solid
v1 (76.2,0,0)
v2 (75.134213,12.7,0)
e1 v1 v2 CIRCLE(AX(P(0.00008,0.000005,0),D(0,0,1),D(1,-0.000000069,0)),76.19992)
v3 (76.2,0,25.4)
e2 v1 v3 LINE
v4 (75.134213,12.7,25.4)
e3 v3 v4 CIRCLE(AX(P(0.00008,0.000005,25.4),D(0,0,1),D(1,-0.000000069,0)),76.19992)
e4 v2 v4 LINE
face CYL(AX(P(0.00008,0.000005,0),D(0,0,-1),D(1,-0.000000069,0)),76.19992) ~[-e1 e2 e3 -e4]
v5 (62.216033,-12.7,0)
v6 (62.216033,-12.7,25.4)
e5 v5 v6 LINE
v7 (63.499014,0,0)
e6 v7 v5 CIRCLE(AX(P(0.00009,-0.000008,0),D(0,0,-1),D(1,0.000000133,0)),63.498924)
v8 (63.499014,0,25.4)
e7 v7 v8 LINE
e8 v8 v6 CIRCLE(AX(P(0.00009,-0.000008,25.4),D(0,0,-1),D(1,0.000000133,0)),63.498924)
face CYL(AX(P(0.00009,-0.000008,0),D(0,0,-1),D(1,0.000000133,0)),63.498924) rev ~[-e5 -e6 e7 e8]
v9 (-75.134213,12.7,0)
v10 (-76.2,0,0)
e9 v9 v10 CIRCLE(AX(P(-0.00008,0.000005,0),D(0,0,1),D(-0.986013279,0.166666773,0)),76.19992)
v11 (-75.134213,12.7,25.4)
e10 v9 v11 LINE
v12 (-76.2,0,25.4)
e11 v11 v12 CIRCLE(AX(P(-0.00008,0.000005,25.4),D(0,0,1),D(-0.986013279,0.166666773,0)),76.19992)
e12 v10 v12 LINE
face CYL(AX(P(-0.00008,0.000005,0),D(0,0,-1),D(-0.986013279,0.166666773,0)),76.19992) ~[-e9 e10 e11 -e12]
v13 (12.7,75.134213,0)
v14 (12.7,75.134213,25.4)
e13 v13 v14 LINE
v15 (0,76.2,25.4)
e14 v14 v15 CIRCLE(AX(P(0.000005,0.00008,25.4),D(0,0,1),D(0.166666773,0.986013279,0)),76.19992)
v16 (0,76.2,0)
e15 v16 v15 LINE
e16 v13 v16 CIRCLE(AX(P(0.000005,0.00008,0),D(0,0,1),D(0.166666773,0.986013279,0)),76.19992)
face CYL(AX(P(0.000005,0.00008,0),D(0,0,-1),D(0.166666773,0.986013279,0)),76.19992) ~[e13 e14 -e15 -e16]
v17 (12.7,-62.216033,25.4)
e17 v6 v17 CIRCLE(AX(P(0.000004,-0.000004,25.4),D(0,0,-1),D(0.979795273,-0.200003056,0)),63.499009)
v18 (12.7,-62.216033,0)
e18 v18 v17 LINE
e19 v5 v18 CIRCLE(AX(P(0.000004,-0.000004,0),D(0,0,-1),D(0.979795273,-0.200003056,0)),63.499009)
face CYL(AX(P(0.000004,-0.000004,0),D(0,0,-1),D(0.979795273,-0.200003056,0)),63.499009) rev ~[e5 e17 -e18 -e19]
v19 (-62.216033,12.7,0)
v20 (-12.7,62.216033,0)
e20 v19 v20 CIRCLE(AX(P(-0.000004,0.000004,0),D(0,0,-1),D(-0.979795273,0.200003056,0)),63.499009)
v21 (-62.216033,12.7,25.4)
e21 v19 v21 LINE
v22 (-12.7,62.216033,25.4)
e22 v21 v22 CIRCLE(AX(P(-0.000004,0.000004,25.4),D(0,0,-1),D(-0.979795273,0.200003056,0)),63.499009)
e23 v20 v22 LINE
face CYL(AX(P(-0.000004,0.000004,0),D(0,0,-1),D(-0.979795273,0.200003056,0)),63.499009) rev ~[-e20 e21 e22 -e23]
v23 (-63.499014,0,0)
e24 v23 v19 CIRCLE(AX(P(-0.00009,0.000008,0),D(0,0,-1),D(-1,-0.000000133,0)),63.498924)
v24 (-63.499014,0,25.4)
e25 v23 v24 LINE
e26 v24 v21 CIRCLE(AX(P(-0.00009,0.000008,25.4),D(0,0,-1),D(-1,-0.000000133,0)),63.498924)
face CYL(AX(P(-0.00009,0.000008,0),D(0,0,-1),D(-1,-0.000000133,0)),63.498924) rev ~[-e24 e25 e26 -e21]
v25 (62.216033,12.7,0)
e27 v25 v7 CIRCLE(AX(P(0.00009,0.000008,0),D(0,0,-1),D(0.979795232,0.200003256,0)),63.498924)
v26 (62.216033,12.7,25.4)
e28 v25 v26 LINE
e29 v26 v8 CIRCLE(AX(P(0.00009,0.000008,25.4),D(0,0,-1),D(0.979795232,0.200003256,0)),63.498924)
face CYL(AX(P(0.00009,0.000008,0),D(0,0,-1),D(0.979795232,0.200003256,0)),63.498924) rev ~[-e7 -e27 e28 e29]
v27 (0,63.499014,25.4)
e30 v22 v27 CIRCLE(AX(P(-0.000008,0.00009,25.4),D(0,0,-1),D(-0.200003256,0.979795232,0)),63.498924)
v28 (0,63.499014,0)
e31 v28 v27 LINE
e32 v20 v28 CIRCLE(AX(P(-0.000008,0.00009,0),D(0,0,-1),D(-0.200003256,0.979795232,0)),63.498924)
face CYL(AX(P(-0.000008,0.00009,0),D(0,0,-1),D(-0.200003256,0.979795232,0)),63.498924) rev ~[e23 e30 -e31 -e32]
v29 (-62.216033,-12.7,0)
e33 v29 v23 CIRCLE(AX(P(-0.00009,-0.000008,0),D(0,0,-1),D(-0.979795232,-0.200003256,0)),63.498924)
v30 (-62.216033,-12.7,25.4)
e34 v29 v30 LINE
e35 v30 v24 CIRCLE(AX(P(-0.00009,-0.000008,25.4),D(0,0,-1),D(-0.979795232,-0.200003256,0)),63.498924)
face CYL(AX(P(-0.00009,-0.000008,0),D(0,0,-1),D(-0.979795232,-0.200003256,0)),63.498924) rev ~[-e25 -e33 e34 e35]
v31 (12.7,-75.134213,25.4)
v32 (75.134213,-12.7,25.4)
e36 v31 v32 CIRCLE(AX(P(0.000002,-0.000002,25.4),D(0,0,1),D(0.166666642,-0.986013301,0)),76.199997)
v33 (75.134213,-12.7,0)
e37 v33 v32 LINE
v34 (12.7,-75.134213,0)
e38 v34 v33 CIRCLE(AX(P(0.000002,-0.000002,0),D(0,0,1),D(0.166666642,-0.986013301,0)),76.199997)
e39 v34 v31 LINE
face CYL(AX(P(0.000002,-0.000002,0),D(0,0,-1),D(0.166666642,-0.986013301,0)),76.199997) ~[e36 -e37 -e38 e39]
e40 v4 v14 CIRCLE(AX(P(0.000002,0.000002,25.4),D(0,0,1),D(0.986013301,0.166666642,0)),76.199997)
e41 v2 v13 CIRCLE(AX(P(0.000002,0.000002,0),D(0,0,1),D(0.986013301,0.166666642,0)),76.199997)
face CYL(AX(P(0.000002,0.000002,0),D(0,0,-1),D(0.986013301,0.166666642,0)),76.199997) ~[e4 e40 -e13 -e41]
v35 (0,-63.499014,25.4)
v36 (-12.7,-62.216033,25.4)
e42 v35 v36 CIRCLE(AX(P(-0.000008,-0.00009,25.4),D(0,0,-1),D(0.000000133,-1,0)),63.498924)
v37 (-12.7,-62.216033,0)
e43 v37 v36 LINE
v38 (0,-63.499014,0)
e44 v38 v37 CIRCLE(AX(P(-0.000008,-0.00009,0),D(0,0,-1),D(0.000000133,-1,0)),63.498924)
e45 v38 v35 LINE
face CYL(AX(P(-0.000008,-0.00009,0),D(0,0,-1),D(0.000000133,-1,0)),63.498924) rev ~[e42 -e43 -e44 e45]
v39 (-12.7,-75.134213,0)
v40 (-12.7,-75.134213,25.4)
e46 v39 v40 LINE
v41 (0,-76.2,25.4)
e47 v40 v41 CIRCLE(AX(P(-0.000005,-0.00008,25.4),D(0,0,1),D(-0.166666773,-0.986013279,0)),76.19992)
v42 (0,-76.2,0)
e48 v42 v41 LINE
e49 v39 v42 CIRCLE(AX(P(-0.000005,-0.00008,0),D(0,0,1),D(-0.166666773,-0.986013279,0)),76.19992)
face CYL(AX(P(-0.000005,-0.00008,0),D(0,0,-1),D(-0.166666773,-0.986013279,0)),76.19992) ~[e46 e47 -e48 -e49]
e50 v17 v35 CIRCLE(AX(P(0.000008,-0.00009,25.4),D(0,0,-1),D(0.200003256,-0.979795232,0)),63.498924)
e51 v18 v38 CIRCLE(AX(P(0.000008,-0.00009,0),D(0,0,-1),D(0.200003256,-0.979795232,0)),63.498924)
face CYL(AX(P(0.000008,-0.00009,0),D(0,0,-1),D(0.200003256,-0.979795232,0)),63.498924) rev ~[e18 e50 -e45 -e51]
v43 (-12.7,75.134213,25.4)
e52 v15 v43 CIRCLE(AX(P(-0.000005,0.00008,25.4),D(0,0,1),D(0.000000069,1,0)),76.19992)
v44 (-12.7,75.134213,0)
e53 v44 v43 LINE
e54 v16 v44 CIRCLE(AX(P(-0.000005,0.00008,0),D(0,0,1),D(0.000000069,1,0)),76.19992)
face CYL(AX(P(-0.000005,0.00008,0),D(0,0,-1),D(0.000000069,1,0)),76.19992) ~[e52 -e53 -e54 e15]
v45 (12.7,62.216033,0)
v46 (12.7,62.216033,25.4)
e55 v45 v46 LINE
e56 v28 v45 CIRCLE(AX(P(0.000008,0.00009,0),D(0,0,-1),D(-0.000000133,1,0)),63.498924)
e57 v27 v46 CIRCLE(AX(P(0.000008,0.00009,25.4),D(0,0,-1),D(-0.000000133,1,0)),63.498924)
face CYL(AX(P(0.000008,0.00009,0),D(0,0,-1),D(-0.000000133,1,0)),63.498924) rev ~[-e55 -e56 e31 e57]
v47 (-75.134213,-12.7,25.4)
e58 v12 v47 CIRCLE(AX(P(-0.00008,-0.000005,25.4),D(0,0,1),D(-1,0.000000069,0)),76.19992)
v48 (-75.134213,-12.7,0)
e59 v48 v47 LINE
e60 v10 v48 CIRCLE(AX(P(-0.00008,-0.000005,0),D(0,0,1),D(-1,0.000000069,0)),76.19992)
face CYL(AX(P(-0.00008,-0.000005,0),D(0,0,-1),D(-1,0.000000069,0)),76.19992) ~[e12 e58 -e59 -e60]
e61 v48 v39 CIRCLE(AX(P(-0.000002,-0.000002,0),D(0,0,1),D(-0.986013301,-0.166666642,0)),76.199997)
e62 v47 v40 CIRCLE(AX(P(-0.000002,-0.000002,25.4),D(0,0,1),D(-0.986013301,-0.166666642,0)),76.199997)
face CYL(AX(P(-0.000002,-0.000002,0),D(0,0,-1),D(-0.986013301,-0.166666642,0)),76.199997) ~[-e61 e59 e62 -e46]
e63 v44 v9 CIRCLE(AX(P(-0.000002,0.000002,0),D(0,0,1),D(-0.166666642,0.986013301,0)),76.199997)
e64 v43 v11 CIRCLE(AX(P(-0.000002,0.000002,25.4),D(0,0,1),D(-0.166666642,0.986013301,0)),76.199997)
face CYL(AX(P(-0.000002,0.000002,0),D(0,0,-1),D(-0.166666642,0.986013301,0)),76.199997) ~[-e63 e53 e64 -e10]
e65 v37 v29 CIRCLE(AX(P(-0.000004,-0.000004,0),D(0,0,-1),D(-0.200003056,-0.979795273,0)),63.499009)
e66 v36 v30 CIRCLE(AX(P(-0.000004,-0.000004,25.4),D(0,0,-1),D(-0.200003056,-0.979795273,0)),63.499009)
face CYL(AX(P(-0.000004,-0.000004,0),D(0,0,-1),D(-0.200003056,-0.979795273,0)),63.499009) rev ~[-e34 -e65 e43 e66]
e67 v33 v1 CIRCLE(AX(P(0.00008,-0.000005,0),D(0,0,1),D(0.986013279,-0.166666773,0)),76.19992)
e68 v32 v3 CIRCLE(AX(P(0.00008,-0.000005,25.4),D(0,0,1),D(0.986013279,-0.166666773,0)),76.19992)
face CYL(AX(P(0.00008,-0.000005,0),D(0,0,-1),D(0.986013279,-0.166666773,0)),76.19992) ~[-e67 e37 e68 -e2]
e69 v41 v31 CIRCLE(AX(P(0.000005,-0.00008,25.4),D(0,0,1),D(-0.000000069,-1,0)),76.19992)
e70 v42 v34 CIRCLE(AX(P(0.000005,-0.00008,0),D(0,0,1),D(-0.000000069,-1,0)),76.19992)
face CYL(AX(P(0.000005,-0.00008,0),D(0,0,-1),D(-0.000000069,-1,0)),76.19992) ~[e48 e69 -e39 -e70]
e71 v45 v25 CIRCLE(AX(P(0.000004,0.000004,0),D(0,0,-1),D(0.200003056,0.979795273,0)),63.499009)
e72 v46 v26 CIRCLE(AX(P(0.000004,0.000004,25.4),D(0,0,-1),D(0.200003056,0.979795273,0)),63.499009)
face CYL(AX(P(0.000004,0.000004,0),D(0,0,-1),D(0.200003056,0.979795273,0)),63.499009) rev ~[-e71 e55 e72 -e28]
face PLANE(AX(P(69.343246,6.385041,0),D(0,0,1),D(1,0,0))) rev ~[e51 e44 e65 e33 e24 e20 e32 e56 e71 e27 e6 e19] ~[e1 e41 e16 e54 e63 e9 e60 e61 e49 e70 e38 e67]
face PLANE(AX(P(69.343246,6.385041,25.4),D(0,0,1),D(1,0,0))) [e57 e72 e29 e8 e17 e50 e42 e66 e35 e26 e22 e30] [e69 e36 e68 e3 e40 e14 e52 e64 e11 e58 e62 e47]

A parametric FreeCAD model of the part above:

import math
import FreeCAD as App
import Part
import Sketcher
from FreeCAD import Vector
Q = App.Units.Quantity

doc = App.newDocument("Part")
body = doc.addObject("PartDesign::Body", "Body")

sketch1 = body.newObject("Sketcher::SketchObject", "Sketch")
sketch1.AttachmentSupport = (doc.getObject("XY_Plane"), [""])
sketch1.MapMode = "FlatFace"
sketch1.addGeometry([
    Part.ArcOfCircle(Part.Circle(Vector(0.00008, 0.000005, 0), Vector(0, 0, 1), 76.19992), math.radians(-0.000004), math.radians(9.594074)),
    Part.ArcOfCircle(Part.Circle(Vector(0.000002, 0.000002, 0), Vector(0, 0, 1), 76.199997), math.radians(9.594067), math.radians(80.405933)),
    Part.ArcOfCircle(Part.Circle(Vector(0.000005, 0.00008, 0), Vector(0, 0, 1), 76.19992), math.radians(80.405926), math.radians(90.000004)),
    Part.ArcOfCircle(Part.Circle(Vector(-0.000005, 0.00008, 0), Vector(0, 0, 1), 76.19992), math.radians(89.999996), math.radians(99.594074)),
    Part.ArcOfCircle(Part.Circle(Vector(-0.000002, 0.000002, 0), Vector(0, 0, 1), 76.199997), math.radians(99.594067), math.radians(170.405933)),
    Part.ArcOfCircle(Part.Circle(Vector(-0.00008, 0.000005, 0), Vector(0, 0, 1), 76.19992), math.radians(170.405926), math.radians(180.000004)),
    Part.ArcOfCircle(Part.Circle(Vector(-0.00008, -0.000005, 0), Vector(0, 0, 1), 76.19992), math.radians(179.999996), math.radians(189.594074)),
    Part.ArcOfCircle(Part.Circle(Vector(-0.000002, -0.000002, 0), Vector(0, 0, 1), 76.199997), math.radians(-170.405933), math.radians(-99.594067)),
    Part.ArcOfCircle(Part.Circle(Vector(-0.000005, -0.00008, 0), Vector(0, 0, 1), 76.19992), math.radians(-99.594074), math.radians(-89.999996)),
    Part.ArcOfCircle(Part.Circle(Vector(0.000005, -0.00008, 0), Vector(0, 0, 1), 76.19992), math.radians(-90.000004), math.radians(-80.405926)),
    Part.ArcOfCircle(Part.Circle(Vector(0.000002, -0.000002, 0), Vector(0, 0, 1), 76.199997), math.radians(-80.405933), math.radians(-9.594067)),
    Part.ArcOfCircle(Part.Circle(Vector(0.00008, -0.000005, 0), Vector(0, 0, 1), 76.19992), math.radians(-9.594074), math.radians(0.000004)),
    Part.ArcOfCircle(Part.Circle(Vector(-0.00009, 0.000008, 0), Vector(0, 0, 1), 63.498924), math.radians(168.462851), math.radians(180.000008)),
    Part.ArcOfCircle(Part.Circle(Vector(-0.000004, 0.000004, 0), Vector(0, 0, 1), 63.499009), math.radians(101.537138), math.radians(168.462862)),
    Part.ArcOfCircle(Part.Circle(Vector(-0.000008, 0.00009, 0), Vector(0, 0, 1), 63.498924), math.radians(89.999992), math.radians(101.537149)),
    Part.ArcOfCircle(Part.Circle(Vector(0.000008, 0.00009, 0), Vector(0, 0, 1), 63.498924), math.radians(78.462851), math.radians(90.000008)),
    Part.ArcOfCircle(Part.Circle(Vector(0.000004, 0.000004, 0), Vector(0, 0, 1), 63.499009), math.radians(11.537138), math.radians(78.462862)),
    Part.ArcOfCircle(Part.Circle(Vector(0.00009, 0.000008, 0), Vector(0, 0, 1), 63.498924), math.radians(-0.000008), math.radians(11.537149)),
    Part.ArcOfCircle(Part.Circle(Vector(0.00009, -0.000008, 0), Vector(0, 0, 1), 63.498924), math.radians(-11.537149), math.radians(0.000008)),
    Part.ArcOfCircle(Part.Circle(Vector(0.000004, -0.000004, 0), Vector(0, 0, 1), 63.499009), math.radians(-78.462862), math.radians(-11.537138)),
    Part.ArcOfCircle(Part.Circle(Vector(0.000008, -0.00009, 0), Vector(0, 0, 1), 63.498924), math.radians(-90.000008), math.radians(-78.462851)),
    Part.ArcOfCircle(Part.Circle(Vector(-0.000008, -0.00009, 0), Vector(0, 0, 1), 63.498924), math.radians(-101.537149), math.radians(-89.999992)),
    Part.ArcOfCircle(Part.Circle(Vector(-0.000004, -0.000004, 0), Vector(0, 0, 1), 63.499009), math.radians(-168.462862), math.radians(-101.537138)),
    Part.ArcOfCircle(Part.Circle(Vector(-0.00009, -0.000008, 0), Vector(0, 0, 1), 63.498924), math.radians(179.999992), math.radians(191.537149)),
], False)
sketch1.addConstraint([
    Sketcher.Constraint("Coincident", 0, 2, 1, 1),
    Sketcher.Constraint("Coincident", 1, 2, 2, 1),
    Sketcher.Constraint("Coincident", 2, 2, 3, 1),
    Sketcher.Constraint("Coincident", 3, 2, 4, 1),
    Sketcher.Constraint("Coincident", 4, 2, 5, 1),
    Sketcher.Constraint("Coincident", 5, 2, 6, 1),
    Sketcher.Constraint("Coincident", 6, 2, 7, 1),
    Sketcher.Constraint("Coincident", 7, 2, 8, 1),
    Sketcher.Constraint("Coincident", 8, 2, 9, 1),
    Sketcher.Constraint("Coincident", 9, 2, 10, 1),
    Sketcher.Constraint("Coincident", 10, 2, 11, 1),
    Sketcher.Constraint("Coincident", 11, 2, 0, 1),
    Sketcher.Constraint("Coincident", 12, 1, 13, 2),
    Sketcher.Constraint("Coincident", 13, 1, 14, 2),
    Sketcher.Constraint("Coincident", 14, 1, 15, 2),
    Sketcher.Constraint("Coincident", 15, 1, 16, 2),
    Sketcher.Constraint("Coincident", 16, 1, 17, 2),
    Sketcher.Constraint("Coincident", 17, 1, 18, 2),
    Sketcher.Constraint("Coincident", 18, 1, 19, 2),
    Sketcher.Constraint("Coincident", 19, 1, 20, 2),
    Sketcher.Constraint("Coincident", 20, 1, 21, 2),
    Sketcher.Constraint("Coincident", 21, 1, 22, 2),
    Sketcher.Constraint("Coincident", 22, 1, 23, 2),
    Sketcher.Constraint("Coincident", 23, 1, 12, 2),
    Sketcher.Constraint("Coincident", 1, 3, -1, 1),
    Sketcher.Constraint("Coincident", 4, 3, -1, 1),
    Sketcher.Constraint("Coincident", 7, 3, -1, 1),
    Sketcher.Constraint("Coincident", 10, 3, -1, 1),
    Sketcher.Constraint("Coincident", 13, 3, -1, 1),
    Sketcher.Constraint("Coincident", 16, 3, -1, 1),
    Sketcher.Constraint("Coincident", 19, 3, -1, 1),
    Sketcher.Constraint("Coincident", 22, 3, -1, 1),
    Sketcher.Constraint("PointOnObject", 2, 2, -2),
    Sketcher.Constraint("PointOnObject", 5, 2, -1),
    Sketcher.Constraint("PointOnObject", 8, 2, -2),
    Sketcher.Constraint("PointOnObject", 11, 2, -1),
    Sketcher.Constraint("PointOnObject", 14, 1, -2),
    Sketcher.Constraint("PointOnObject", 17, 1, -1),
    Sketcher.Constraint("PointOnObject", 20, 1, -2),
    Sketcher.Constraint("PointOnObject", 23, 1, -1),
    Sketcher.Constraint("Radius", 1, Q("2.9999999 in")),
    Sketcher.Constraint("Radius", 4, Q("2.9999999 in")),
    Sketcher.Constraint("Radius", 7, Q("2.9999999 in")),
    Sketcher.Constraint("Radius", 10, Q("2.9999999 in")),
    Sketcher.Constraint("DistanceY", -1, 1, 2, 2, Q("3 in")),
    Sketcher.Constraint("DistanceX", 5, 2, -1, 1, Q("3 in")),
    Sketcher.Constraint("DistanceY", 8, 2, -1, 1, Q("3 in")),
    Sketcher.Constraint("DistanceX", -1, 1, 11, 2, Q("3 in")),
    Sketcher.Constraint("DistanceX", 3, 2, 1, 2, Q("1 in")),
    Sketcher.Constraint("DistanceY", 6, 2, 4, 2, Q("1 in")),
    Sketcher.Constraint("DistanceX", 7, 2, 9, 2, Q("1 in")),
    Sketcher.Constraint("DistanceY", 10, 2, 0, 2, Q("1 in")),
    Sketcher.Constraint("DistanceY", 6, 2, 12, 1, Q("1 in")),
    Sketcher.Constraint("DistanceX", 13, 1, 1, 2, Q("1 in")),
    Sketcher.Constraint("DistanceX", 13, 1, 15, 1, Q("1 in")),
    Sketcher.Constraint("DistanceY", 10, 2, 16, 1, Q("1 in")),
    Sketcher.Constraint("DistanceY", 18, 1, 16, 1, Q("1 in")),
    Sketcher.Constraint("DistanceX", 7, 2, 19, 1, Q("1 in")),
    Sketcher.Constraint("DistanceX", 21, 1, 19, 1, Q("1 in")),
    Sketcher.Constraint("DistanceY", 22, 1, 12, 1, Q("1 in")),
    Sketcher.Constraint("DistanceY", -1, 1, 0, 2, Q("0.5 in")),
    Sketcher.Constraint("DistanceX", -1, 1, 1, 2, Q("0.5 in")),
    Sketcher.Constraint("DistanceY", -1, 1, 4, 2, Q("0.5 in")),
    Sketcher.Constraint("DistanceX", 7, 2, -1, 1, Q("0.5 in")),
    Sketcher.Constraint("Radius", 0, Q("76.19992 mm")),
    Sketcher.Constraint("Radius", 2, Q("76.19992 mm")),
    Sketcher.Constraint("Radius", 3, Q("76.19992 mm")),
    Sketcher.Constraint("Radius", 5, Q("76.19992 mm")),
    Sketcher.Constraint("Radius", 6, Q("76.19992 mm")),
    Sketcher.Constraint("Radius", 8, Q("76.19992 mm")),
    Sketcher.Constraint("Radius", 9, Q("76.19992 mm")),
    Sketcher.Constraint("Radius", 11, Q("76.19992 mm")),
    Sketcher.Constraint("Radius", 13, Q("63.499009 mm")),
    Sketcher.Constraint("Radius", 16, Q("63.499009 mm")),
    Sketcher.Constraint("Radius", 19, Q("63.499009 mm")),
    Sketcher.Constraint("Radius", 22, Q("63.499009 mm")),
    Sketcher.Constraint("Radius", 12, Q("63.498924 mm")),
    Sketcher.Constraint("Radius", 14, Q("63.498924 mm")),
    Sketcher.Constraint("Radius", 15, Q("63.498924 mm")),
    Sketcher.Constraint("Radius", 17, Q("63.498924 mm")),
    Sketcher.Constraint("Radius", 18, Q("63.498924 mm")),
    Sketcher.Constraint("Radius", 20, Q("63.498924 mm")),
    Sketcher.Constraint("Radius", 21, Q("63.498924 mm")),
    Sketcher.Constraint("Radius", 23, Q("63.498924 mm")),
    Sketcher.Constraint("DistanceY", 14, 1, 3, 2, Q("11.635199 mm")),
    Sketcher.Constraint("DistanceX", 17, 1, 0, 2, Q("11.635199 mm")),
    Sketcher.Constraint("DistanceY", 9, 2, 20, 1, Q("11.635199 mm")),
    Sketcher.Constraint("DistanceX", 6, 2, 23, 1, Q("11.635199 mm")),
])
pad1 = body.newObject("PartDesign::Pad", "Pad")
pad1.Profile = sketch1
pad1.Length = Q("1 in")

doc.recompute()
